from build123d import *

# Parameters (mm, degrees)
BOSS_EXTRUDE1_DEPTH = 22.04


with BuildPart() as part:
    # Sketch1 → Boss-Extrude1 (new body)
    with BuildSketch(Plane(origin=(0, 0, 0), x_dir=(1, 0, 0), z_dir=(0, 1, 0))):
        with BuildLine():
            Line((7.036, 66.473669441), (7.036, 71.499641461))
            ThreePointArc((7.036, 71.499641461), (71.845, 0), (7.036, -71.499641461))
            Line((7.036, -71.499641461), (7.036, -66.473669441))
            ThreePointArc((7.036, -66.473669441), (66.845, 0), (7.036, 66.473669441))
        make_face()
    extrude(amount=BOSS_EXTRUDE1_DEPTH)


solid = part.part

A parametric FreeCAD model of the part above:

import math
import FreeCAD as App
import Part
import Sketcher
from FreeCAD import Vector

doc = App.newDocument("Part")
body = doc.addObject("PartDesign::Body", "Body")

# Sketch on XZ plane
sketch1 = doc.addObject("Sketcher::SketchObject", "Sketch")
body.addObject(sketch1)
sketch1.AttachmentSupport = (doc.XZ_Plane, [""])
sketch1.MapMode = "FlatFace"
sketch1.addGeometry([
    Part.LineSegment(Vector(7, -71, 0), Vector(7, -66, 0)),
    Part.ArcOfCircle(Part.Circle(Vector(0, 0, 0), Vector(0, 0, 1), 67), math.radians(-84), math.radians(84)),
    Part.LineSegment(Vector(7, 66, 0), Vector(7, 71, 0)),
    Part.ArcOfCircle(Part.Circle(Vector(0, 0, 0), Vector(0, 0, 1), 72), math.radians(-84), math.radians(84)),
], False)
sketch1.addConstraint([
    Sketcher.Constraint("Coincident", 0, 2, 1, 1),
    Sketcher.Constraint("Coincident", 1, 2, 2, 1),
    Sketcher.Constraint("Coincident", 2, 2, 3, 2),
    Sketcher.Constraint("Coincident", 3, 1, 0, 1),
    Sketcher.Constraint("Vertical", 0),
    Sketcher.Constraint("Vertical", 2),
    Sketcher.Constraint("Coincident", 1, 3, -1, 1),
    Sketcher.Constraint("Coincident", 3, 3, -1, 1),
    Sketcher.Constraint("Vertical", 0, 2, 1, 2),
    Sketcher.Constraint("Radius", 1, 66.845),
    Sketcher.Constraint("Radius", 3, 71.845),
    Sketcher.Constraint("DistanceX", -1, 1, 0, 2, 7.036),
])
pad1 = doc.addObject("PartDesign::Pad", "Pad")
body.addObject(pad1)
pad1.Profile = sketch1
pad1.Length = 22.04
pad1.Reversed = True

doc.recompute()
